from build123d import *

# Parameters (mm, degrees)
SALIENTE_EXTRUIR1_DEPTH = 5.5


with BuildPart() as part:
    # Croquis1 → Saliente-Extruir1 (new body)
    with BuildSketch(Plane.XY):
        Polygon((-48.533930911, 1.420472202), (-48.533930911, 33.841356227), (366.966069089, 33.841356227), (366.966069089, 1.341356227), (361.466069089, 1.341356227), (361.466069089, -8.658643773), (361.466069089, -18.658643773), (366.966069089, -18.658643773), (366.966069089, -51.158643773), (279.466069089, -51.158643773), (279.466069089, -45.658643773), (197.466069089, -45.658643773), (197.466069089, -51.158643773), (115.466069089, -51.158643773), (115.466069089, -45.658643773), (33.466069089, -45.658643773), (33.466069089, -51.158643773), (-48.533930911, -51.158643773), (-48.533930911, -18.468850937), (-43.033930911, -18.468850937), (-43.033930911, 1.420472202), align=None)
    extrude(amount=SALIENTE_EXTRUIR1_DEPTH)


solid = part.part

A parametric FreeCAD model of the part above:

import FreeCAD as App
import Part
import Sketcher
from FreeCAD import Vector


def add_polygon(sketch, points):
    """Adds a closed chain of lines whose ends are joined by coincident constraints."""
    first, n = sketch.GeometryCount, len(points)
    for a, b in zip(points, points[1:] + points[:1]):
        sketch.addGeometry(Part.LineSegment(App.Vector(*a, 0), App.Vector(*b, 0)), False)
    for i in range(n):
        sketch.addConstraint(Sketcher.Constraint("Coincident", first + i, 2, first + (i + 1) % n, 1))

doc = App.newDocument("Part")
body = doc.addObject("PartDesign::Body", "Body")

sketch1 = body.newObject("Sketcher::SketchObject", "Sketch")
sketch1.AttachmentSupport = (doc.getObject("XY_Plane"), [""])
sketch1.MapMode = "FlatFace"
add_polygon(sketch1, [(-49, 34), (-49, 1), (-43, 1), (-43, -18), (-49, -18), (-49, -51), (33, -51), (33, -46), (115, -46), (115, -51), (197, -51), (197, -46), (279, -46), (279, -51), (367, -51), (367, -19), (361, -19), (361, 1), (367, 1), (367, 34)])
sketch1.addConstraint([
    Sketcher.Constraint("Vertical", 0),
    Sketcher.Constraint("Horizontal", 1),
    Sketcher.Constraint("Vertical", 2),
    Sketcher.Constraint("Horizontal", 3),
    Sketcher.Constraint("Vertical", 4),
    Sketcher.Constraint("Horizontal", 5),
    Sketcher.Constraint("Vertical", 6),
    Sketcher.Constraint("Horizontal", 7),
    Sketcher.Constraint("Vertical", 8),
    Sketcher.Constraint("Horizontal", 9),
    Sketcher.Constraint("Vertical", 10),
    Sketcher.Constraint("Horizontal", 11),
    Sketcher.Constraint("Vertical", 12),
    Sketcher.Constraint("Horizontal", 13),
    Sketcher.Constraint("Vertical", 14),
    Sketcher.Constraint("Horizontal", 15),
    Sketcher.Constraint("Vertical", 16),
    Sketcher.Constraint("Horizontal", 17),
    Sketcher.Constraint("Vertical", 18),
    Sketcher.Constraint("Horizontal", 19),
    Sketcher.Constraint("Horizontal", 5, 2, 8, 2),
    Sketcher.Constraint("Horizontal", 7, 2, 10, 2),
    Sketcher.Constraint("Horizontal", 9, 2, 12, 2),
    Sketcher.Constraint("Vertical", 0, 2, 3, 2),
    Sketcher.Constraint("Vertical", 14, 2, 17, 2),
    Sketcher.Constraint("Equal", 5, 7),
    Sketcher.Constraint("Equal", 7, 9),
    Sketcher.Constraint("Equal", 9, 11),
    Sketcher.Constraint("Equal", 3, 15),
    Sketcher.Constraint("Equal", 17, 6),
    Sketcher.Constraint("Equal", 14, 18),
    Sketcher.Constraint("DistanceX", 5, 1, 5, 2, 82.0),
    Sketcher.Constraint("DistanceY", 16, 1, 16, 2, 20.0),
    Sketcher.Constraint("DistanceX", 1, 1, 1, 2, 5.5),
    Sketcher.Constraint("DistanceX", 13, 1, 13, 2, 87.5),
    Sketcher.Constraint("DistanceY", 14, 1, 14, 2, 32.5),
    Sketcher.Constraint("DistanceY", 0, 2, 0, 1, 32.420884),
    Sketcher.Constraint("DistanceY", 2, 2, 2, 1, 19.889323),
    Sketcher.Constraint("DistanceX", 0, 2, -1, 1, 48.533931),
    Sketcher.Constraint("DistanceY", 2, 2, -1, 1, 18.468851),
])
pad1 = body.newObject("PartDesign::Pad", "Pad")
pad1.Profile = sketch1
pad1.Length = 5.5

doc.recompute()
